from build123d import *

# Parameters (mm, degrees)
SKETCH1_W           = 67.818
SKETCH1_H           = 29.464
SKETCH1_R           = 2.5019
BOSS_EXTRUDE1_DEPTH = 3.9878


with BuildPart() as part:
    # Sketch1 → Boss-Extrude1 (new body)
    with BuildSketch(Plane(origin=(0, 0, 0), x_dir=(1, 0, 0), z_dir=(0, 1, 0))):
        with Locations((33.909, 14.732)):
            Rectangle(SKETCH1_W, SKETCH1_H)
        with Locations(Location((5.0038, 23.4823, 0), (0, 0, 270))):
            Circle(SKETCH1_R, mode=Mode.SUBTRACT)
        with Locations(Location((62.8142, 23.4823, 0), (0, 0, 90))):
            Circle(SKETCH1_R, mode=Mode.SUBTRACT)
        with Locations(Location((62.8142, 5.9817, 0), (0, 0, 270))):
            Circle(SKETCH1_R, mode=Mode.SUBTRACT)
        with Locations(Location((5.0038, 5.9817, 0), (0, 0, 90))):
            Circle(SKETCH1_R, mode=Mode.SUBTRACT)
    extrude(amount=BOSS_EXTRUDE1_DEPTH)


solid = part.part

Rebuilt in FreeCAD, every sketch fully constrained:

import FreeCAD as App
import Part
import Sketcher

V = App.Vector
Q = App.Units.Quantity


def add_polygon(sketch, points):
    """Adds a closed chain of lines whose ends are joined by coincident constraints."""
    first, n = sketch.GeometryCount, len(points)
    for a, b in zip(points, points[1:] + points[:1]):
        sketch.addGeometry(Part.LineSegment(App.Vector(*a, 0), App.Vector(*b, 0)), False)
    for i in range(n):
        sketch.addConstraint(Sketcher.Constraint("Coincident", first + i, 2, first + (i + 1) % n, 1))

doc = App.newDocument("Part")
body = doc.addObject("PartDesign::Body", "Body")

sketch1 = body.newObject("Sketcher::SketchObject", "Sketch")
sketch1.AttachmentSupport = (doc.getObject("XZ_Plane"), [""])
sketch1.MapMode = "FlatFace"
add_polygon(sketch1, [(0, -29.5), (0, 0), (67.8, 0), (67.8, -29.5)])
sketch1.addGeometry(Part.Circle(V(5, -6, 0), V(0, 0, 1), 2.5), False)
sketch1.addGeometry(Part.Circle(V(62.8, -6, 0), V(0, 0, 1), 2.5), False)
sketch1.addGeometry(Part.Circle(V(5, -23.5, 0), V(0, 0, 1), 2.5), False)
sketch1.addGeometry(Part.Circle(V(62.8, -23.5, 0), V(0, 0, 1), 2.5), False)
sketch1.addConstraint(Sketcher.Constraint("Vertical", 0))
sketch1.addConstraint(Sketcher.Constraint("Horizontal", 1))
sketch1.addConstraint(Sketcher.Constraint("Vertical", 2))
sketch1.addConstraint(Sketcher.Constraint("Horizontal", 3))
sketch1.addConstraint(Sketcher.Constraint("Coincident", 0, 2, -1, 1))
sketch1.addConstraint(Sketcher.Constraint("Equal", 4, 5))
sketch1.addConstraint(Sketcher.Constraint("Equal", 5, 6))
sketch1.addConstraint(Sketcher.Constraint("Equal", 6, 7))
sketch1.addConstraint(Sketcher.Constraint("Horizontal", 4, 3, 5, 3))
sketch1.addConstraint(Sketcher.Constraint("Horizontal", 6, 3, 7, 3))
sketch1.addConstraint(Sketcher.Constraint("Vertical", 4, 3, 6, 3))
sketch1.addConstraint(Sketcher.Constraint("Vertical", 5, 3, 7, 3))
sketch1.addConstraint(Sketcher.Constraint("Diameter", 4, Q("0.197 in")))
sketch1.addConstraint(Sketcher.Constraint("DistanceX", 1, 1, 1, 2, Q("2.67 in")))
sketch1.addConstraint(Sketcher.Constraint("DistanceY", 0, 1, 0, 2, Q("1.16 in")))
sketch1.addConstraint(Sketcher.Constraint("DistanceX", -1, 1, 4, 3, Q("0.197 in")))
sketch1.addConstraint(Sketcher.Constraint("DistanceX", -1, 1, 5, 3, Q("2.473 in")))
sketch1.addConstraint(Sketcher.Constraint("DistanceY", 6, 3, 4, 3, Q("0.689 in")))
sketch1.addConstraint(Sketcher.Constraint("DistanceY", 4, 3, -1, 1, Q("0.2355 in")))
pad1 = body.newObject("PartDesign::Pad", "Pad")
pad1.Profile = sketch1
pad1.Length = Q("0.157 in")
pad1.Reversed = True

doc.recompute()
